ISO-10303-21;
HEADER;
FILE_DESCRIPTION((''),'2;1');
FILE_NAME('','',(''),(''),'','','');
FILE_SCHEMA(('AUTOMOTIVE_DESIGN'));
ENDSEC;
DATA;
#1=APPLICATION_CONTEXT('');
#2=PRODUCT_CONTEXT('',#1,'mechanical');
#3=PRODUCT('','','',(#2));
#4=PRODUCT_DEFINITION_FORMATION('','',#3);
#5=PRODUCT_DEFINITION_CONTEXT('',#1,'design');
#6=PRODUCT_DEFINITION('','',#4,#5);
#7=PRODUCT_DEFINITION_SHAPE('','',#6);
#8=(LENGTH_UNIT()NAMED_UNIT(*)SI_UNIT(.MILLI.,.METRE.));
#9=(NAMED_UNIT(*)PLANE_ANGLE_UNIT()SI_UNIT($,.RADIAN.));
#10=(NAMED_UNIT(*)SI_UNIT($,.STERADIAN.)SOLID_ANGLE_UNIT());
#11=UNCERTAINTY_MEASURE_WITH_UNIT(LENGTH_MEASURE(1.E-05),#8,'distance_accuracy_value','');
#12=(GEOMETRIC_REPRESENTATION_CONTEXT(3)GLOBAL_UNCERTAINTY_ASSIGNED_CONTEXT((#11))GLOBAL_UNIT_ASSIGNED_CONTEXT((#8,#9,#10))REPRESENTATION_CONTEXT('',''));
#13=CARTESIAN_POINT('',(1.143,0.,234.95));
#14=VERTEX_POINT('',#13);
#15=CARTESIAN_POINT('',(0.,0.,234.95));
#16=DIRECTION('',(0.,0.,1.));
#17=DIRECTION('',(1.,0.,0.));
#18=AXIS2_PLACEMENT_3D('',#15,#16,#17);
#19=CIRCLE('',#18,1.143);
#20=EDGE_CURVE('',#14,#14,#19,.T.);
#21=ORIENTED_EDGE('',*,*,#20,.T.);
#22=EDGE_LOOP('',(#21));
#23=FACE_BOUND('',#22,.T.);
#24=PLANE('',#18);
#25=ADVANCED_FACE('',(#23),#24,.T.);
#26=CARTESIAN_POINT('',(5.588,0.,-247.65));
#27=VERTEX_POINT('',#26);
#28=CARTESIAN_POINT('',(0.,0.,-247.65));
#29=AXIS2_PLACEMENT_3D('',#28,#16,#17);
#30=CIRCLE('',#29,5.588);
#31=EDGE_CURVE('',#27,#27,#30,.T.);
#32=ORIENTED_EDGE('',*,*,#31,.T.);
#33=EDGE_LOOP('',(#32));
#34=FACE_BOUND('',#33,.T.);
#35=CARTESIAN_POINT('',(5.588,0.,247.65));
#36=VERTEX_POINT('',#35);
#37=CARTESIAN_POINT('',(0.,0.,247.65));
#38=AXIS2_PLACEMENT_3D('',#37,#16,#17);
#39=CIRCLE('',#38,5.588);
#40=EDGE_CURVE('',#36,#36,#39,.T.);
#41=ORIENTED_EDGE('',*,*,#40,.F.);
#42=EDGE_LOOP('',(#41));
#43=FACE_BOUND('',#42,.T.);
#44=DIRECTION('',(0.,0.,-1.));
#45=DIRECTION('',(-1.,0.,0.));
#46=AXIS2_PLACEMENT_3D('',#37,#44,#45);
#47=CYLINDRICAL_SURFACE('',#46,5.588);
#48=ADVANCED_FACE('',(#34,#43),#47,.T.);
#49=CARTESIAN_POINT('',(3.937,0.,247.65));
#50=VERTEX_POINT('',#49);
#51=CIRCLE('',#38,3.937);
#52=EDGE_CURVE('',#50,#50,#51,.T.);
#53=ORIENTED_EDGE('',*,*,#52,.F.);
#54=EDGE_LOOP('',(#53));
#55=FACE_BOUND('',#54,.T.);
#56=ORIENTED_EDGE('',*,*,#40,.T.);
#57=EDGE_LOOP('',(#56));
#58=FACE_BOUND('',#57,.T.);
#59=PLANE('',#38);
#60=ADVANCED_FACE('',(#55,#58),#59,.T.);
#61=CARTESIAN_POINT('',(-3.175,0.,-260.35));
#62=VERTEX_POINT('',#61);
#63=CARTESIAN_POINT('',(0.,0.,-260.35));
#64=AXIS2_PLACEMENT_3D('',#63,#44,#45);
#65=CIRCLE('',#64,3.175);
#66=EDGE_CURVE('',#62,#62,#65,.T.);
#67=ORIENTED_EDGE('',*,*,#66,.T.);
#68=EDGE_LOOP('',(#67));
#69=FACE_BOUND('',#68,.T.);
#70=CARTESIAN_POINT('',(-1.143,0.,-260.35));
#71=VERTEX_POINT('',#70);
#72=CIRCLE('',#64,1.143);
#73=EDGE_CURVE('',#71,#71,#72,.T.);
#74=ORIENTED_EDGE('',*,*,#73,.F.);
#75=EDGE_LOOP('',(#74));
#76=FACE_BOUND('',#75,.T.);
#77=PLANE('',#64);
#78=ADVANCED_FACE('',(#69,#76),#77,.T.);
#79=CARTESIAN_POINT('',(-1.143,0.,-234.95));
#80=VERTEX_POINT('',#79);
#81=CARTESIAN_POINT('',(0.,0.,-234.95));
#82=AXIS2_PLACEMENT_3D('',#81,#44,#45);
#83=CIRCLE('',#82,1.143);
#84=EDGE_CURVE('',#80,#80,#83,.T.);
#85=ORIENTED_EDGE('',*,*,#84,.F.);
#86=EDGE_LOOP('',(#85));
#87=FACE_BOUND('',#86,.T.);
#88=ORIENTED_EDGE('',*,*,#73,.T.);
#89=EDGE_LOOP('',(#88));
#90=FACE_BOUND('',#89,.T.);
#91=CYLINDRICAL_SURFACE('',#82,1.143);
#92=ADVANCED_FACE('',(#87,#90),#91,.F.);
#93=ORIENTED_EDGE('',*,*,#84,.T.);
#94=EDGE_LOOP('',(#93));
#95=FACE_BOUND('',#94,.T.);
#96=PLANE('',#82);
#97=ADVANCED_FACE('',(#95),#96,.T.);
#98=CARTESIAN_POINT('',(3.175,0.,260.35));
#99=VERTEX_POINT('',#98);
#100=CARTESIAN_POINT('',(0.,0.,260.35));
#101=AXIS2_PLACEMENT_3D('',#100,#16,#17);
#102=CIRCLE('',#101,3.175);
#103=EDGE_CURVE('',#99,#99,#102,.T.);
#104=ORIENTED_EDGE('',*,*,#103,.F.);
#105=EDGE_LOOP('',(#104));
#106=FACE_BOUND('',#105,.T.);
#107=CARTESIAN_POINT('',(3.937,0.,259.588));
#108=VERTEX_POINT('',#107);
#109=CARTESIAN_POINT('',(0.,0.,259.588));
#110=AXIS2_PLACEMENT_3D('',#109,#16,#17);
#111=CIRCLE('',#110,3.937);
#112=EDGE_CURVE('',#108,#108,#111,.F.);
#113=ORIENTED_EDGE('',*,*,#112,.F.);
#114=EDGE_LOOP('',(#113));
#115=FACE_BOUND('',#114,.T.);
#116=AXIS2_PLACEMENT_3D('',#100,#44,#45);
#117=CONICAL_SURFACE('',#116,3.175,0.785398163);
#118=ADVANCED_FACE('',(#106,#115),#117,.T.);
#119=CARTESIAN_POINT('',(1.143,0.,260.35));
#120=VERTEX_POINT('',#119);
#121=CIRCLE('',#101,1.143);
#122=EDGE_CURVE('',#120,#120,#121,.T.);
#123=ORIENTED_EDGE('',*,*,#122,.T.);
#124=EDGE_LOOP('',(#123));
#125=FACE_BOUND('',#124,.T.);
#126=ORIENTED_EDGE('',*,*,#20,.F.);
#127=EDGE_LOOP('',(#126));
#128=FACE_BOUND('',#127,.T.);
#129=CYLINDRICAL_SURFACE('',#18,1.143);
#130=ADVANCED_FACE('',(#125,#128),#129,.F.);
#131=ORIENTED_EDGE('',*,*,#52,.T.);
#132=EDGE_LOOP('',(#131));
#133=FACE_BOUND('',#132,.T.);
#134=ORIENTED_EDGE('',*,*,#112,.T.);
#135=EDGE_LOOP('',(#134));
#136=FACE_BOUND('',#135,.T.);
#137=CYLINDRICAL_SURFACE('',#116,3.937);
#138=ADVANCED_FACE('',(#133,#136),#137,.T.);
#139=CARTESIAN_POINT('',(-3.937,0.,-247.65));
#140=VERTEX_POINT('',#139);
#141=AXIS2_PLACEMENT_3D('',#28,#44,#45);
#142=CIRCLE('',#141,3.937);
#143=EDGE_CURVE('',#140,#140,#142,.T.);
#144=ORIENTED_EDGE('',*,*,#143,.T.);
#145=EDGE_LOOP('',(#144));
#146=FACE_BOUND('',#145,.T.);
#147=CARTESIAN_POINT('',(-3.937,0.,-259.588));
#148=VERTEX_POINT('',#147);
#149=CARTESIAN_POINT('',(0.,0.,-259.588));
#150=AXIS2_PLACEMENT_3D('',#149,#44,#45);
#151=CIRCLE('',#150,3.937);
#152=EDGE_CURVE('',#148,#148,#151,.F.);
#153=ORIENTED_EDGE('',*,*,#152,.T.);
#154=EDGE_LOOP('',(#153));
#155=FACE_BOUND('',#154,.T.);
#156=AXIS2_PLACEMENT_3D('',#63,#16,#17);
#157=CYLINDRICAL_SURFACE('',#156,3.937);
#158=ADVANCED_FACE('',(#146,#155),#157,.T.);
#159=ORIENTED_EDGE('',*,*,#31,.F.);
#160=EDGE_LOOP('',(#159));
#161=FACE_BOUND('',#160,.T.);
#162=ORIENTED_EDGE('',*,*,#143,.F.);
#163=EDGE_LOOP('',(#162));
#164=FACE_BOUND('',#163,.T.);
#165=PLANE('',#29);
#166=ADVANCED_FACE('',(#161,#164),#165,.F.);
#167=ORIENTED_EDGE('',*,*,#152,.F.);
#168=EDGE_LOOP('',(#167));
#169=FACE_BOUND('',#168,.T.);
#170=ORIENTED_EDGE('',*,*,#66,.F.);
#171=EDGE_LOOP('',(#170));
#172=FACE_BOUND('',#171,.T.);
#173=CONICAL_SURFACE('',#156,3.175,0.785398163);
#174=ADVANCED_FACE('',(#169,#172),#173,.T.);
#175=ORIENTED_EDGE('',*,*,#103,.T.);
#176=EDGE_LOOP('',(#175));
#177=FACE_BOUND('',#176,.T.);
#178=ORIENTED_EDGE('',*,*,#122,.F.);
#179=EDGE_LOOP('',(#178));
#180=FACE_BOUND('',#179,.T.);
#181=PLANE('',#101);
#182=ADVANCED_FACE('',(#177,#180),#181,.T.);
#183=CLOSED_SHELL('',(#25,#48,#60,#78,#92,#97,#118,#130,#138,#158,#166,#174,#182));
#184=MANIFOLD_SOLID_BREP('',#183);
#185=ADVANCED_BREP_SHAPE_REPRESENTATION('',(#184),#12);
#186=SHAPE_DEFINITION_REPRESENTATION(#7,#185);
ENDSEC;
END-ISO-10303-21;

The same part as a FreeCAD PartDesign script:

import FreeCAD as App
import Part
import Sketcher
from FreeCAD import Vector
Q = App.Units.Quantity


def edges_at(feature, points):
    """Names of the edges that pass closest to the given points."""
    edges = feature.Shape.Edges
    near = lambda p: min(range(len(edges)), key=lambda i: edges[i].distToShape(Part.Vertex(*p))[0])
    return sorted({f"Edge{near(p) + 1}" for p in points})

doc = App.newDocument("Part")
body = doc.addObject("PartDesign::Body", "Body")

sketch1 = doc.addObject("Sketcher::SketchObject", "Sketch")
body.addObject(sketch1)
sketch1.AttachmentSupport = (doc.XY_Plane, [""])
sketch1.MapMode = "FlatFace"
sketch1.addGeometry(Part.Circle(Vector(0, 0, 0), Vector(0, 0, 1), 6), False)
sketch1.addConstraint([
    Sketcher.Constraint("Coincident", 0, 3, -1, 1),
    Sketcher.Constraint("Diameter", 0, Q("0.44 in")),
])
pad1 = doc.addObject("PartDesign::Pad", "Pad")
body.addObject(pad1)
pad1.Profile = sketch1
pad1.Length = Q("19.5 in")
pad1.Midplane = True

sketch2 = doc.addObject("Sketcher::SketchObject", "Sketch001")
body.addObject(sketch2)
sketch2.AttachmentSupport = (doc.XY_Plane, [""])
sketch2.MapMode = "FlatFace"
sketch2.AttachmentOffset = App.Placement(Vector(0, 0, 9.75 * 25.4), App.Rotation())
sketch2.addGeometry(Part.Circle(Vector(0, 0, 0), Vector(0, 0, 1), 3.9), False)
sketch2.addConstraint([
    Sketcher.Constraint("Coincident", 0, 3, -1, 1),
    Sketcher.Constraint("Diameter", 0, Q("0.31 in")),
])
pad2 = doc.addObject("PartDesign::Pad", "Pad001")
body.addObject(pad2)
pad2.Profile = sketch2
pad2.Length = Q("0.5 in")

sketch3 = doc.addObject("Sketcher::SketchObject", "Sketch002")
body.addObject(sketch3)
sketch3.AttachmentSupport = (doc.XY_Plane, [""])
sketch3.MapMode = "FlatFace"
sketch3.AttachmentOffset = App.Placement(Vector(0, 0, -10.25 * 25.4), App.Rotation())
sketch3.addGeometry(Part.Circle(Vector(0, 0, 0), Vector(0, 0, 1), 3.9), False)
sketch3.addConstraint([
    Sketcher.Constraint("Coincident", 0, 3, -1, 1),
    Sketcher.Constraint("Diameter", 0, Q("0.31 in")),
])
pad3 = doc.addObject("PartDesign::Pad", "Pad002")
body.addObject(pad3)
pad3.Profile = sketch3
pad3.Length = Q("0.5 in")

sketch4 = doc.addObject("Sketcher::SketchObject", "Sketch003")
body.addObject(sketch4)
sketch4.AttachmentSupport = (doc.XY_Plane, [""])
sketch4.MapMode = "FlatFace"
sketch4.AttachmentOffset = App.Placement(Vector(0, 0, 10.25 * 25.4), App.Rotation())
sketch4.addGeometry(Part.Circle(Vector(0, 0, 0), Vector(0, 0, 1), 1.1), False)
sketch4.addConstraint([
    Sketcher.Constraint("Coincident", 0, 3, -1, 1),
    Sketcher.Constraint("Diameter", 0, Q("0.09 in")),
])
pocket1 = doc.addObject("PartDesign::Pocket", "Pocket")
body.addObject(pocket1)
pocket1.Profile = sketch4
pocket1.Length = Q("1 in")

sketch5 = doc.addObject("Sketcher::SketchObject", "Sketch004")
body.addObject(sketch5)
sketch5.AttachmentSupport = (doc.XY_Plane, [""])
sketch5.MapMode = "FlatFace"
sketch5.AttachmentOffset = App.Placement(Vector(0, 0, -9.25 * 25.4), App.Rotation())
sketch5.addGeometry(Part.Circle(Vector(0, 0, 0), Vector(0, 0, 1), 1.1), False)
sketch5.addConstraint([
    Sketcher.Constraint("Coincident", 0, 3, -1, 1),
    Sketcher.Constraint("Diameter", 0, Q("0.09 in")),
])
pocket2 = doc.addObject("PartDesign::Pocket", "Pocket001")
body.addObject(pocket2)
pocket2.Profile = sketch5
pocket2.Length = Q("1 in")
doc.recompute()

chamfer = doc.addObject("PartDesign::Chamfer", "Chamfer")
body.addObject(chamfer)
chamfer.Base = (pocket2, edges_at(pocket2, [(-3.937, 0, -260.35), (-3.937, 0, 260.35)]))
chamfer.Size = Q("0.03 in")

doc.recompute()
